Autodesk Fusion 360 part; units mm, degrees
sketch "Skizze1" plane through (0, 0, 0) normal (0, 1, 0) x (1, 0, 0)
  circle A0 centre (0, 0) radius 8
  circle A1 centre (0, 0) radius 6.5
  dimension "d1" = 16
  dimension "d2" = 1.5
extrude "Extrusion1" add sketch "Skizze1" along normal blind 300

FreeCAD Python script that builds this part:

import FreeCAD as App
import Part
import Sketcher

V = App.Vector
Q = App.Units.Quantity

doc = App.newDocument("Part")
params = doc.addObject("Spreadsheet::Sheet", "Params")
for row, (alias, value) in enumerate([
    ("sketch1_diameter", "16 mm"),
    ("sketch1_diameter2", "13 mm"),
    ("pad1_length", "300 mm"),
], start=1):
    params.set(f"A{row}", alias)
    params.set(f"B{row}", "=" + value)
    params.setAlias(f"B{row}", alias)

body = doc.addObject("PartDesign::Body", "Body")

sketch1 = body.newObject("Sketcher::SketchObject", "Sketch")
sketch1.AttachmentSupport = (doc.getObject("XZ_Plane"), [""])
sketch1.MapMode = "FlatFace"
sketch1.addGeometry(Part.Circle(V(0, 0, 0), V(0, 0, 1), 8), False)
sketch1.addGeometry(Part.Circle(V(0, 0, 0), V(0, 0, 1), 6.5), False)
sketch1.addConstraint(Sketcher.Constraint("Coincident", 0, 3, -1, 1))
sketch1.addConstraint(Sketcher.Constraint("Coincident", 1, 3, -1, 1))
sketch1.addConstraint(Sketcher.Constraint("Diameter", 0, Q("16 mm")))
sketch1.addConstraint(Sketcher.Constraint("Diameter", 1, Q("13 mm")))
sketch1.setExpression("Constraints[2]", "Params.sketch1_diameter")
sketch1.setExpression("Constraints[3]", "Params.sketch1_diameter2")
pad1 = body.newObject("PartDesign::Pad", "Pad")
pad1.Profile = sketch1
pad1.setExpression("Length", "Params.pad1_length")
pad1.Reversed = True

doc.recompute()
